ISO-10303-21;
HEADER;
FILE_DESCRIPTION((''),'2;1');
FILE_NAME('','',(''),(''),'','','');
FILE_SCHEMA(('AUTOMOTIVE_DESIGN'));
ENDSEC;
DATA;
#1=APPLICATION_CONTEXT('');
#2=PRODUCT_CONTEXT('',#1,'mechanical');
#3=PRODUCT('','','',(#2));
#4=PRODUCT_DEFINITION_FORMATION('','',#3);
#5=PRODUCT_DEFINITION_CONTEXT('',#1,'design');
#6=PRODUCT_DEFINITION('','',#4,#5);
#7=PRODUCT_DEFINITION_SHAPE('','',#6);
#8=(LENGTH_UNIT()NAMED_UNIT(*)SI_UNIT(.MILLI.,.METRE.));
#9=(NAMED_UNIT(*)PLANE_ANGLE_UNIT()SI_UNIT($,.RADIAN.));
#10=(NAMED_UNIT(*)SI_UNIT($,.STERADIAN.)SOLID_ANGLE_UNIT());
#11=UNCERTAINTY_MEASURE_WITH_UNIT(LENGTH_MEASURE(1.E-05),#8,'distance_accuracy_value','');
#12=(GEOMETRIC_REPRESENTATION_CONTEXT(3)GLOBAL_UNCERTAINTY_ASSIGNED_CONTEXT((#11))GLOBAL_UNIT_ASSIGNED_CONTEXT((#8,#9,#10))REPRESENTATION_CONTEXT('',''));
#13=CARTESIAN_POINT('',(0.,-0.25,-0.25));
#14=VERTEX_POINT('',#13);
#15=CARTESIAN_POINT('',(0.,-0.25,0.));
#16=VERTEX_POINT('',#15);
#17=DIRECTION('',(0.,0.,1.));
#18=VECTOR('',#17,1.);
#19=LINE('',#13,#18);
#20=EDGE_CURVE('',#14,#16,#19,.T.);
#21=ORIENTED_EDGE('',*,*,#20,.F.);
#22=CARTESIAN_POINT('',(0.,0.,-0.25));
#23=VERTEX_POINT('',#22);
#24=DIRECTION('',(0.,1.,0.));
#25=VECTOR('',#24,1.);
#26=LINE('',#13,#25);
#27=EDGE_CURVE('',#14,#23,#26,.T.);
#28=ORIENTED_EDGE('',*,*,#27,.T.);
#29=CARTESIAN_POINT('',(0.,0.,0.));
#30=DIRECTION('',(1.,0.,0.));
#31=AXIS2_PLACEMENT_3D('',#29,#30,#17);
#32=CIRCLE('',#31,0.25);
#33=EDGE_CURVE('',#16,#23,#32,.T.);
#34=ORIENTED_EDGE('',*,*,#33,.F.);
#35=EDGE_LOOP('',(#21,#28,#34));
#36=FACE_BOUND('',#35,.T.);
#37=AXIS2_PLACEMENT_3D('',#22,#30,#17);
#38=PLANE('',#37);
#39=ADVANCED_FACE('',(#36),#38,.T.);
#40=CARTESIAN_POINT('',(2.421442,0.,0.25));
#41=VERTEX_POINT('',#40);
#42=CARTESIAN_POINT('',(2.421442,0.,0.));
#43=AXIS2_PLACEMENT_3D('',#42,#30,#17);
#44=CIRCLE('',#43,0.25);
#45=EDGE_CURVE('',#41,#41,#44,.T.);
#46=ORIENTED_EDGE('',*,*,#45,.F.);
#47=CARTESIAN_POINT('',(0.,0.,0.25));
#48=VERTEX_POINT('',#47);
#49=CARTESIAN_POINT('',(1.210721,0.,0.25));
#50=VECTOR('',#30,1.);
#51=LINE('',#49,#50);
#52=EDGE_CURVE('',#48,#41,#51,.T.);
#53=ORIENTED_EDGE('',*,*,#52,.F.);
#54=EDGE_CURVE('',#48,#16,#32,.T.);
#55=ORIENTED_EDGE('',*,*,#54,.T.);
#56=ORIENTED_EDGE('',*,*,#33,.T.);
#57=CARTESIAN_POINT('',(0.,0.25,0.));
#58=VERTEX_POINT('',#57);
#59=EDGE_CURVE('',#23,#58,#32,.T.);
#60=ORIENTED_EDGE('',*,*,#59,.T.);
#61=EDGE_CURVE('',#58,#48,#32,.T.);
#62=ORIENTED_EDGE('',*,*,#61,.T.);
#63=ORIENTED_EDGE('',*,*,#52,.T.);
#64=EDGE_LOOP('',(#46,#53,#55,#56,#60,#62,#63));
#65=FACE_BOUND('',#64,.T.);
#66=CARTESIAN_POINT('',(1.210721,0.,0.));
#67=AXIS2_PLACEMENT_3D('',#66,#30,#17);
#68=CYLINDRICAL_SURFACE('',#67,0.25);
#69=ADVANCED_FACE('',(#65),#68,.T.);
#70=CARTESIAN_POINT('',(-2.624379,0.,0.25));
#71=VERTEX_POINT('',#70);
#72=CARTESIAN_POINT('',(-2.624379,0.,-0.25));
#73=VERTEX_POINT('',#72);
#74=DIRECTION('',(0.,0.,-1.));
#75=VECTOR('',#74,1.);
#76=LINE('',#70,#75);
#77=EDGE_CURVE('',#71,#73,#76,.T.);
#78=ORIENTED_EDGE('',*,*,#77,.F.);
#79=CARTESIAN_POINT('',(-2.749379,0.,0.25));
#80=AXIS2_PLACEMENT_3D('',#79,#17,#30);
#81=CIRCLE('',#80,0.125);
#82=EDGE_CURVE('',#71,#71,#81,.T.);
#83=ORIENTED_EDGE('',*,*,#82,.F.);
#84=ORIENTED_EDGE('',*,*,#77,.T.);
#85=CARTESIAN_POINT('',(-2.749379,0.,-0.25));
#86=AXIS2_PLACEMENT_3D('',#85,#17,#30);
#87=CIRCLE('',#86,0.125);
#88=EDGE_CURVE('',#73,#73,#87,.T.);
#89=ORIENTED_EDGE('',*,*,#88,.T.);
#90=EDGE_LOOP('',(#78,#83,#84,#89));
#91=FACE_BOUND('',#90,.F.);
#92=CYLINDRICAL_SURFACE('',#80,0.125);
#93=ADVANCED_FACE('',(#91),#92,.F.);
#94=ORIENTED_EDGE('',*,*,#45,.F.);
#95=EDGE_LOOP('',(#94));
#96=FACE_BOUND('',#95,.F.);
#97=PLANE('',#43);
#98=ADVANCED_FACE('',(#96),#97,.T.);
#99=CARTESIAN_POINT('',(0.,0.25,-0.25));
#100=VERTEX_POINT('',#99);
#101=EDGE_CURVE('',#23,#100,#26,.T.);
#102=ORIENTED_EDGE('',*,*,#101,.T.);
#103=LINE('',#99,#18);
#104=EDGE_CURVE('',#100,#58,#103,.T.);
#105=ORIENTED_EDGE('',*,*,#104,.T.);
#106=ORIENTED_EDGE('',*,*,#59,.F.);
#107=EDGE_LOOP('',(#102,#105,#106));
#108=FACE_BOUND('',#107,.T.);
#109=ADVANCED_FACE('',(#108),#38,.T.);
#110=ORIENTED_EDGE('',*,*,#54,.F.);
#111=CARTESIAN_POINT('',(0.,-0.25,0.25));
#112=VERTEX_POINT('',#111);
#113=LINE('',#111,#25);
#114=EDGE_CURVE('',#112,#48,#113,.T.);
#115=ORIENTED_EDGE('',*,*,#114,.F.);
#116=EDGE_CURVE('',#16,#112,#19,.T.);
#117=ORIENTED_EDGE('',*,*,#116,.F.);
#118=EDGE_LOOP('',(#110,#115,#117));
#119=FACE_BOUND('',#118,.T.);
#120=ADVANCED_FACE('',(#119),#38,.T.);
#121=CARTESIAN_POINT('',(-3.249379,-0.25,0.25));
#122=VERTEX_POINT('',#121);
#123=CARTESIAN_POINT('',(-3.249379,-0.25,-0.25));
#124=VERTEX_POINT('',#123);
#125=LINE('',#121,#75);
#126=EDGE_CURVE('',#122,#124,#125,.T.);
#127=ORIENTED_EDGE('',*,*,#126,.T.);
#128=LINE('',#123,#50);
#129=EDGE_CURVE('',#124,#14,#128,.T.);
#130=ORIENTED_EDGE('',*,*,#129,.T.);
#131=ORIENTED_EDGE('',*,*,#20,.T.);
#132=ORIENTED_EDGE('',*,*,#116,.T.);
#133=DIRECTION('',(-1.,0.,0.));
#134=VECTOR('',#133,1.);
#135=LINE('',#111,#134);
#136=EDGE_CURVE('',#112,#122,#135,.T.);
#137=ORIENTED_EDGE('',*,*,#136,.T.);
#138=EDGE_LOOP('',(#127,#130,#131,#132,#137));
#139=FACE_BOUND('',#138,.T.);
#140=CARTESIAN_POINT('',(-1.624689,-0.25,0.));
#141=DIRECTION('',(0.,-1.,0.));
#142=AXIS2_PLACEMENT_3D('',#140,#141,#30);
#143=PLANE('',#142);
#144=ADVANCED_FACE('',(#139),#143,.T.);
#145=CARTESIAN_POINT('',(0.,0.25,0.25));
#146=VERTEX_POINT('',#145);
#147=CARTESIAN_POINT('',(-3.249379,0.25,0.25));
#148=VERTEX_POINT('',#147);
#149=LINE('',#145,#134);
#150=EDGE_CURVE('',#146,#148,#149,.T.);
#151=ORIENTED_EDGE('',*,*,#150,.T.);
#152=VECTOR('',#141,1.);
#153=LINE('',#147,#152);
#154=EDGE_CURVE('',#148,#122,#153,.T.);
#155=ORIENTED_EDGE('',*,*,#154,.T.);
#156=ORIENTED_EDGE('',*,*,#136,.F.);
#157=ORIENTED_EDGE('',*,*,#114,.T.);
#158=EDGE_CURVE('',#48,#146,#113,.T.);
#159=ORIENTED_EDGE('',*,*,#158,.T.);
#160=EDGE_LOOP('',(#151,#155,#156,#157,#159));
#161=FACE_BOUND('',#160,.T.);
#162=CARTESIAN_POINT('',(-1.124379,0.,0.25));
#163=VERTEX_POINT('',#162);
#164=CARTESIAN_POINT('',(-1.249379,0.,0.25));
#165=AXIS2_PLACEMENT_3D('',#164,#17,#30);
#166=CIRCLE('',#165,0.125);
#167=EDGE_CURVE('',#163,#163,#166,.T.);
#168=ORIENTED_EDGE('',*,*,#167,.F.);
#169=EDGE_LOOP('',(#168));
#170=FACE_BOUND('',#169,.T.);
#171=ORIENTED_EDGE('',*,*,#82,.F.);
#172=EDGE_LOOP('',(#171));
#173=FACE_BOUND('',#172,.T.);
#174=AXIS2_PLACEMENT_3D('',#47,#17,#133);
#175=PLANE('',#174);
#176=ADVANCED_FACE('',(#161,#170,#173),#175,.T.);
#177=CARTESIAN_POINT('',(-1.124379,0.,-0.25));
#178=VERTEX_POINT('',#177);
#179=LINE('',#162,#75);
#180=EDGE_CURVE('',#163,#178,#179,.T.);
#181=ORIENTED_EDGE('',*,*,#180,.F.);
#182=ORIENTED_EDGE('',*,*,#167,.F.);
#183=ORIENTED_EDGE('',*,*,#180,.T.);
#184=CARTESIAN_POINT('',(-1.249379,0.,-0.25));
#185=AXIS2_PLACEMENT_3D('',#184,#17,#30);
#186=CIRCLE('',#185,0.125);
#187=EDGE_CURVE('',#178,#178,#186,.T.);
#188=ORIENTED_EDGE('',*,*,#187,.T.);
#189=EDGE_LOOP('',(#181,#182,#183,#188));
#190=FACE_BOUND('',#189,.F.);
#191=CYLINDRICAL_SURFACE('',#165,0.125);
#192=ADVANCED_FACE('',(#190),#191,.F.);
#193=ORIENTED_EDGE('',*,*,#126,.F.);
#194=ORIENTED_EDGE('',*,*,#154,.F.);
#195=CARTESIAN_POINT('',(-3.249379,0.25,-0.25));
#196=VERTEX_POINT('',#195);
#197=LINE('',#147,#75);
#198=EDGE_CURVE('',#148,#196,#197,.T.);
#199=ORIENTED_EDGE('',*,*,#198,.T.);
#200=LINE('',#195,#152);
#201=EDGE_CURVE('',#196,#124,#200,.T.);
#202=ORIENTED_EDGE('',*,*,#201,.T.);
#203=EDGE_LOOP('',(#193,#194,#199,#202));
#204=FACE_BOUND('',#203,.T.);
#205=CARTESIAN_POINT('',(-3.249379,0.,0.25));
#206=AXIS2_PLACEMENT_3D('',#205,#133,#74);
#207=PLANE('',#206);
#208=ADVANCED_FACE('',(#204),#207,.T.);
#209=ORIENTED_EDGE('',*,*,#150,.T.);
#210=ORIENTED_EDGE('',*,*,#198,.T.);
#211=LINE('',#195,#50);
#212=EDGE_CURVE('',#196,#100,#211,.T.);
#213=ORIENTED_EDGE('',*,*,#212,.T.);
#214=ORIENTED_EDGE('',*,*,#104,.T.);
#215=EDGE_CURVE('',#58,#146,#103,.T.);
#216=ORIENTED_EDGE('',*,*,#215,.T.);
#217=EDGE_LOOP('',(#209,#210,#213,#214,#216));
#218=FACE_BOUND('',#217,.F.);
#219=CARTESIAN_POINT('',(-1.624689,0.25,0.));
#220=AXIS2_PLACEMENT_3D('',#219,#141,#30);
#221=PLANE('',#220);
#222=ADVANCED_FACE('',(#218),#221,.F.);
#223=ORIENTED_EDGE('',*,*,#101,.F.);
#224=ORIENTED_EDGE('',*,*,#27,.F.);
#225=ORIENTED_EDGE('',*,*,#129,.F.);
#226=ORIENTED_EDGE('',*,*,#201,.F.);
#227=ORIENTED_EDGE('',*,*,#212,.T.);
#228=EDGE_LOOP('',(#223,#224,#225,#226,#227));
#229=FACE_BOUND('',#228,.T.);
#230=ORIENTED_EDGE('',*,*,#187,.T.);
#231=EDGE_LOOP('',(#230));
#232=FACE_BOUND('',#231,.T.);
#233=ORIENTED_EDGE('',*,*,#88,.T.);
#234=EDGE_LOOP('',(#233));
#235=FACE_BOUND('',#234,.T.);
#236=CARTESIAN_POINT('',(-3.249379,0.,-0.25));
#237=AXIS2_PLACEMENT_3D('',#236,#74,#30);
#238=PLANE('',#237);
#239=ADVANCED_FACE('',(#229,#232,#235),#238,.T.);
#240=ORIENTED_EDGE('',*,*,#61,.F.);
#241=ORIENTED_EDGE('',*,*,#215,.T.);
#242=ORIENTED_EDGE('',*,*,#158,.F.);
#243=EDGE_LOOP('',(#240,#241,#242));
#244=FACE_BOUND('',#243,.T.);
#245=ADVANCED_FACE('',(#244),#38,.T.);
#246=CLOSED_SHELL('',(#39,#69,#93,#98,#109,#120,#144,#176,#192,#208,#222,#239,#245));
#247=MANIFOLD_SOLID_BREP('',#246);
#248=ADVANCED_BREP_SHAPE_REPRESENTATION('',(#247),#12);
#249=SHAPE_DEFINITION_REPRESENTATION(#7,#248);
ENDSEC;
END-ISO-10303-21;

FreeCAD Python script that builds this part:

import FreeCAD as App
import Part
import Sketcher
from FreeCAD import Vector


def add_polygon(sketch, points):
    """Adds a closed chain of lines whose ends are joined by coincident constraints."""
    first, n = sketch.GeometryCount, len(points)
    for a, b in zip(points, points[1:] + points[:1]):
        sketch.addGeometry(Part.LineSegment(App.Vector(*a, 0), App.Vector(*b, 0)), False)
    for i in range(n):
        sketch.addConstraint(Sketcher.Constraint("Coincident", first + i, 2, first + (i + 1) % n, 1))

doc = App.newDocument("Part")
body = doc.addObject("PartDesign::Body", "Body")

sketch1 = body.newObject("Sketcher::SketchObject", "Sketch")
sketch1.AttachmentSupport = (doc.getObject("XZ_Plane"), [""])
sketch1.MapMode = "FlatFace"
add_polygon(sketch1, [(0, 0.25), (-3.249379, 0.25), (-3.249379, -0.25), (0, -0.25)])
sketch1.addConstraint(Sketcher.Constraint("Horizontal", 0))
sketch1.addConstraint(Sketcher.Constraint("Vertical", 1))
sketch1.addConstraint(Sketcher.Constraint("Horizontal", 2))
sketch1.addConstraint(Sketcher.Constraint("Vertical", 3))
sketch1.addConstraint(Sketcher.Constraint("Symmetric", 2, 2, 3, 2, -1, 1))
sketch1.addConstraint(Sketcher.Constraint("DistanceY", 1, 2, 1, 1, 0.5))
sketch1.addConstraint(Sketcher.Constraint("DistanceX", 0, 2, 0, 1, 3.249379))
pad1 = body.newObject("PartDesign::Pad", "Pad")
pad1.Profile = sketch1
pad1.Length = 0.5
pad1.Midplane = True

sketch2 = body.newObject("Sketcher::SketchObject", "Sketch001")
sketch2.AttachmentSupport = (doc.getObject("XZ_Plane"), [""])
sketch2.MapMode = "FlatFace"
add_polygon(sketch2, [(0, 0.25), (0, 0), (2.421442, 0), (2.421442, 0.25)])
sketch2.addConstraint(Sketcher.Constraint("Vertical", 0))
sketch2.addConstraint(Sketcher.Constraint("Horizontal", 1))
sketch2.addConstraint(Sketcher.Constraint("Vertical", 2))
sketch2.addConstraint(Sketcher.Constraint("Horizontal", 3))
sketch2.addConstraint(Sketcher.Constraint("Coincident", 0, 2, -1, 1))
sketch2.addConstraint(Sketcher.Constraint("DistanceY", 0, 2, 0, 1, 0.25))
sketch2.addConstraint(Sketcher.Constraint("DistanceX", 1, 1, 1, 2, 2.421442))
revolution = body.newObject("PartDesign::Revolution", "Revolution")
revolution.Profile = sketch2
revolution.ReferenceAxis = (sketch2, ["H_Axis"])
revolution.Angle = 360

sketch3 = body.newObject("Sketcher::SketchObject", "Sketch002")
sketch3.AttachmentSupport = (doc.getObject("XY_Plane"), [""])
sketch3.MapMode = "FlatFace"
sketch3.AttachmentOffset = App.Placement(Vector(0, 0, 0.25), App.Rotation())
sketch3.addGeometry(Part.Circle(Vector(-2.749379, 0, 0), Vector(0, 0, 1), 0.125), False)
sketch3.addGeometry(Part.Circle(Vector(-1.249379, 0, 0), Vector(0, 0, 1), 0.125), False)
sketch3.addConstraint(Sketcher.Constraint("Equal", 0, 1))
sketch3.addConstraint(Sketcher.Constraint("PointOnObject", 0, 3, -1))
sketch3.addConstraint(Sketcher.Constraint("PointOnObject", 1, 3, -1))
sketch3.addConstraint(Sketcher.Constraint("Diameter", 0, 0.25))
sketch3.addConstraint(Sketcher.Constraint("DistanceX", 0, 3, 1, 3, 1.5))
sketch3.addConstraint(Sketcher.Constraint("DistanceX", 0, 3, -1, 1, 2.749379))
pocket1 = body.newObject("PartDesign::Pocket", "Pocket")
pocket1.Profile = sketch3
pocket1.Type = "ThroughAll"

doc.recompute()
